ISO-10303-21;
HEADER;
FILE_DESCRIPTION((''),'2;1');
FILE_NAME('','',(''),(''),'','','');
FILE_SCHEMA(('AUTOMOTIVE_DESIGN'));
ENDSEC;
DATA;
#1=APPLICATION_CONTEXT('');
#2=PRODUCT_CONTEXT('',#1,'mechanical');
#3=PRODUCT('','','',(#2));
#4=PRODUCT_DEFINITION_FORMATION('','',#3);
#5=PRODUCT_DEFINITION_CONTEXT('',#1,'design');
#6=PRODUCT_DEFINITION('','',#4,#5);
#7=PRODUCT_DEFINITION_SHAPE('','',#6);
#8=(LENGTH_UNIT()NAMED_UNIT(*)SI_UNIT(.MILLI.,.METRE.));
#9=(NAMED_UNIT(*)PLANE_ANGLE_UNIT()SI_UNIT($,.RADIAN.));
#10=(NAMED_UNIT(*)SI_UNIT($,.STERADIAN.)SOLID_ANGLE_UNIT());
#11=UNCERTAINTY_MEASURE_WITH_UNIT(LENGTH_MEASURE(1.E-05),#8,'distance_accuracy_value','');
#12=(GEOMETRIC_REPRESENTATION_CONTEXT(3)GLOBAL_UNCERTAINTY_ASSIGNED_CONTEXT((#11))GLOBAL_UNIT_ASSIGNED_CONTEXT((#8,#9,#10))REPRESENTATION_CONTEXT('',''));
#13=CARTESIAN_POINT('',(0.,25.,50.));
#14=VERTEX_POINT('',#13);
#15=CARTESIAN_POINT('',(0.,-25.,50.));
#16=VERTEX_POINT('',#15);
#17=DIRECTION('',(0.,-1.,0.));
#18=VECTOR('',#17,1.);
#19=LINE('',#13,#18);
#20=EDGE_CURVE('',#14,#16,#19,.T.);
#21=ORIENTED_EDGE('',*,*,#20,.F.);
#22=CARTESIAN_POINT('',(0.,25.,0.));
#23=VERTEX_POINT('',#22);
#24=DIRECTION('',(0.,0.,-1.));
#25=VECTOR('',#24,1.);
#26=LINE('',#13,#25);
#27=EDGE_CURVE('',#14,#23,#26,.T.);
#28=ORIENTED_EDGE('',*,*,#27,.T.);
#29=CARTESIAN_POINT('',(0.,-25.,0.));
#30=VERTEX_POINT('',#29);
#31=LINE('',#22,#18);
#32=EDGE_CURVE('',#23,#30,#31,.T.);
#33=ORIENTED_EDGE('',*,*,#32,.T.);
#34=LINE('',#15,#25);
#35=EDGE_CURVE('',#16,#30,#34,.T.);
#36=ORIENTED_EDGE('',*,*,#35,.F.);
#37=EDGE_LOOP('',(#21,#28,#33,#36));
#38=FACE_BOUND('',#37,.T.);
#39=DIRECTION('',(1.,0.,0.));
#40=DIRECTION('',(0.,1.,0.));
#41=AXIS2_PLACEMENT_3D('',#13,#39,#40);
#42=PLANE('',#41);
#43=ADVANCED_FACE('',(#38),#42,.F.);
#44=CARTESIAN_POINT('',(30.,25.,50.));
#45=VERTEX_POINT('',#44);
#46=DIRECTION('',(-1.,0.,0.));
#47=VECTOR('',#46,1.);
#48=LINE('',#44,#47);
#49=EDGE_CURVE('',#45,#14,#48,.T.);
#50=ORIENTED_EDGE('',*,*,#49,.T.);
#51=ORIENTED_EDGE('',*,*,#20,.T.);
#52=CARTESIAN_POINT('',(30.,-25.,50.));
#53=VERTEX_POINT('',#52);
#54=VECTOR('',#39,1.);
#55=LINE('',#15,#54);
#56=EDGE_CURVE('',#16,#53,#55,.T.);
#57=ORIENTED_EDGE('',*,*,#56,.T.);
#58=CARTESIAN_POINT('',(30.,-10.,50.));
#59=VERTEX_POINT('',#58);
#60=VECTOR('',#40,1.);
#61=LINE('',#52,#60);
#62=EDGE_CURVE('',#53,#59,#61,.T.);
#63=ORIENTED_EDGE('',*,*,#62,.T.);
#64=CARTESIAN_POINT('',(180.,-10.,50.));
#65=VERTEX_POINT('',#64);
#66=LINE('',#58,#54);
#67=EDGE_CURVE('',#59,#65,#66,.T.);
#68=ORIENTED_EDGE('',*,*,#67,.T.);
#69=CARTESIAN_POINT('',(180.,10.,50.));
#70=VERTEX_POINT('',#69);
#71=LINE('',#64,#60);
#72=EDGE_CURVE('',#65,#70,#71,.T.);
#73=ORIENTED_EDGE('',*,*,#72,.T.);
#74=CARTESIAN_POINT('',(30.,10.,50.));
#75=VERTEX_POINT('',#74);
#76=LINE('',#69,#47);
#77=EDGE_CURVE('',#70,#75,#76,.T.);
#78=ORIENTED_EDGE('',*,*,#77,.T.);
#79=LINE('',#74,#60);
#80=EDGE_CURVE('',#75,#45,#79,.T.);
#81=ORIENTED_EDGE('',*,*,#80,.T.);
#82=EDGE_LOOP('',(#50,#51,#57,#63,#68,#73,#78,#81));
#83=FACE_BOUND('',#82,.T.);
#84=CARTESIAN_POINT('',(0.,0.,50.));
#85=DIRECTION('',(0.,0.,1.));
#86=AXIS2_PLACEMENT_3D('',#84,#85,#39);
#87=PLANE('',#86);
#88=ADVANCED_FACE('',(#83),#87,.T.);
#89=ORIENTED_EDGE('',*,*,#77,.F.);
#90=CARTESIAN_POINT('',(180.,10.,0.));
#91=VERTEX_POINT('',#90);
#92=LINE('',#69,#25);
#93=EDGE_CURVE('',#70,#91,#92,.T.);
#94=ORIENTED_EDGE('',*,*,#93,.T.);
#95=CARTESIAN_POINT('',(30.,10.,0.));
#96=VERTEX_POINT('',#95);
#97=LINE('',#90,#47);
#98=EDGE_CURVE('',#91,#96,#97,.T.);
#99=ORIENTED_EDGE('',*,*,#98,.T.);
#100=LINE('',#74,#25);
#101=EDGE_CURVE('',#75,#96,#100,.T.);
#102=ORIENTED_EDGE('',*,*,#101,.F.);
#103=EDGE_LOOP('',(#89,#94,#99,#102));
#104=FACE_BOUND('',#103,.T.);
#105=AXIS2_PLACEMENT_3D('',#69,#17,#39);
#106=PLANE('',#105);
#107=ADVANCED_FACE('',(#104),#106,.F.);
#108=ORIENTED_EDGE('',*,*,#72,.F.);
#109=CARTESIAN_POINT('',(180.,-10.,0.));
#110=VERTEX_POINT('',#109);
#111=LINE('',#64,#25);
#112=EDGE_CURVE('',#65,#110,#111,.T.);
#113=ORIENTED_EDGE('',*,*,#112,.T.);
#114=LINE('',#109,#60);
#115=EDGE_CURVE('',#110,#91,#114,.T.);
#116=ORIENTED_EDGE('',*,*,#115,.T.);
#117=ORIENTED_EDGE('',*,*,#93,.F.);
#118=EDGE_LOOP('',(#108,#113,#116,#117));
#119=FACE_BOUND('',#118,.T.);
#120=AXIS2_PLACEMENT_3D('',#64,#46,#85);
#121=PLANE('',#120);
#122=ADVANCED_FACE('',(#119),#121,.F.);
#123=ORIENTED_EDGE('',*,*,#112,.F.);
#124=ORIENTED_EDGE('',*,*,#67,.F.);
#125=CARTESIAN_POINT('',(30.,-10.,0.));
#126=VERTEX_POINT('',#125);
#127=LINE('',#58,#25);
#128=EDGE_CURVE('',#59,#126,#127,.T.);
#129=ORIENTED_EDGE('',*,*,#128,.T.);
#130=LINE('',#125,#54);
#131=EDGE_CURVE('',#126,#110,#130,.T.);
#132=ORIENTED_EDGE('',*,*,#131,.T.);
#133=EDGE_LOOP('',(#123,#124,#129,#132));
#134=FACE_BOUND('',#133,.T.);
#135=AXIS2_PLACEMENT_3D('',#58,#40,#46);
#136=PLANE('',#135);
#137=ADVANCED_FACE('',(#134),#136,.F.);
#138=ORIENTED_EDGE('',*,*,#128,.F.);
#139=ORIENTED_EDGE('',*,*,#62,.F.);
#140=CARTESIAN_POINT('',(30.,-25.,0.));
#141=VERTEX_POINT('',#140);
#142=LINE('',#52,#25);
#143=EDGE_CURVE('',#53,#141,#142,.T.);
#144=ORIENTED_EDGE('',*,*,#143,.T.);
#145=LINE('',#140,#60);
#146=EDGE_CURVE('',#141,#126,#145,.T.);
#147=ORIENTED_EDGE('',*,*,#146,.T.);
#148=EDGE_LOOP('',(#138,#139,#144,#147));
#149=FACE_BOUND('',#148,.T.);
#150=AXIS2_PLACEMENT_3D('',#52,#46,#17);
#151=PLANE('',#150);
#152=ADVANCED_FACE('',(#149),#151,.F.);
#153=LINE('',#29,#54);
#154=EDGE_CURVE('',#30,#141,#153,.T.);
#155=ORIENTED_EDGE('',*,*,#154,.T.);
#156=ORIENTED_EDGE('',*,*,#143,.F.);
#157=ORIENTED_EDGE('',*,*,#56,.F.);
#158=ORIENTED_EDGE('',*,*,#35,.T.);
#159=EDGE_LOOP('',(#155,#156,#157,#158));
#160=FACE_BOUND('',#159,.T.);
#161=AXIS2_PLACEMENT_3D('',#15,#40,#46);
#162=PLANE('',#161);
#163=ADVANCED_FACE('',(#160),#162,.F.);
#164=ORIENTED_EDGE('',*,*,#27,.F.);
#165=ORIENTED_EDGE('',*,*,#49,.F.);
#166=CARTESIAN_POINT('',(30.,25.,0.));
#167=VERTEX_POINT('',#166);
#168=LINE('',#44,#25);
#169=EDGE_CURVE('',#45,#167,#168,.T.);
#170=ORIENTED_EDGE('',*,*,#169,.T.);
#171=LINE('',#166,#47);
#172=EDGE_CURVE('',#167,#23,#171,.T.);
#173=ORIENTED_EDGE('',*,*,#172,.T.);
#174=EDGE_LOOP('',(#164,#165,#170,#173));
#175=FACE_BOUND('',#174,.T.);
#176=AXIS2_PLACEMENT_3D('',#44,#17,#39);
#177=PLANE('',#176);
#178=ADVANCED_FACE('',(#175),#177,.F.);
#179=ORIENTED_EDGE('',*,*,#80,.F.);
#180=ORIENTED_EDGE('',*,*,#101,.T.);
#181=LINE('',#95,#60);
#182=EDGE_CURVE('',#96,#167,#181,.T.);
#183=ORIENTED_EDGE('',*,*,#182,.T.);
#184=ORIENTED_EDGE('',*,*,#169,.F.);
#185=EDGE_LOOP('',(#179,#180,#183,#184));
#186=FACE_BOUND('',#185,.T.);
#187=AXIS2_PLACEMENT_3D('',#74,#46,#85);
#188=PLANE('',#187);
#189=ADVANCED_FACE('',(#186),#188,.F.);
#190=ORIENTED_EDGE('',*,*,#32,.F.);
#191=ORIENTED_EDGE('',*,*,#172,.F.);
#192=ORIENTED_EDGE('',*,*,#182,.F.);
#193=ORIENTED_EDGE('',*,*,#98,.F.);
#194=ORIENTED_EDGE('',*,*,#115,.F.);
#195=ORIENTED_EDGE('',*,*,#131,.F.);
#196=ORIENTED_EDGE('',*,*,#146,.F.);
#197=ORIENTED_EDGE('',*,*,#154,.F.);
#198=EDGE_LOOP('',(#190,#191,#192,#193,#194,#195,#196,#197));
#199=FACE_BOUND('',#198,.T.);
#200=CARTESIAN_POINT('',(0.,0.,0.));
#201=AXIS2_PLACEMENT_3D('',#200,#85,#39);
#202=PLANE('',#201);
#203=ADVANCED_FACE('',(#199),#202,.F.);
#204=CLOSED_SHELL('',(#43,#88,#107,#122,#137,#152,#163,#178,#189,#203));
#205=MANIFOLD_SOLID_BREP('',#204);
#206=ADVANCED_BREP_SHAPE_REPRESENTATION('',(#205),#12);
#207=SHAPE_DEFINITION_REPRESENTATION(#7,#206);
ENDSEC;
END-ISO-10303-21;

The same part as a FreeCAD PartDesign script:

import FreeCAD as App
import Part
import Sketcher
Q = App.Units.Quantity


def add_polygon(sketch, points):
    """Adds a closed chain of lines whose ends are joined by coincident constraints."""
    first, n = sketch.GeometryCount, len(points)
    for a, b in zip(points, points[1:] + points[:1]):
        sketch.addGeometry(Part.LineSegment(App.Vector(*a, 0), App.Vector(*b, 0)), False)
    for i in range(n):
        sketch.addConstraint(Sketcher.Constraint("Coincident", first + i, 2, first + (i + 1) % n, 1))

doc = App.newDocument("Part")
params = doc.addObject("Spreadsheet::Sheet", "Params")
for row, (alias, value) in enumerate([
    ("sketch1_width", "30 mm"),
    ("sketch1_width2", "150 mm"),
    ("sketch1_height", "50 mm"),
    ("sketch1_height2", "15 mm"),
    ("pad1_length", "50 mm"),
], start=1):
    params.set(f"A{row}", alias)
    params.set(f"B{row}", "=" + value)
    params.setAlias(f"B{row}", alias)

body = doc.addObject("PartDesign::Body", "Body")

# Sketch on XY plane
sketch1 = body.newObject("Sketcher::SketchObject", "Sketch")
sketch1.AttachmentSupport = (doc.getObject("XY_Plane"), [""])
sketch1.MapMode = "FlatFace"
add_polygon(sketch1, [(0, 25), (0, -25), (30, -25), (30, -10), (180, -10), (180, 10), (30, 10), (30, 25)])  # lines 0-7
sketch1.addConstraint([
    Sketcher.Constraint("Vertical", 0),
    Sketcher.Constraint("Horizontal", 1),
    Sketcher.Constraint("Vertical", 2),
    Sketcher.Constraint("Horizontal", 3),
    Sketcher.Constraint("Vertical", 4),
    Sketcher.Constraint("Horizontal", 5),
    Sketcher.Constraint("Vertical", 6),
    Sketcher.Constraint("Horizontal", 7),
    Sketcher.Constraint("Symmetric", 0, 2, 7, 2, -1, 1),
    Sketcher.Constraint("Symmetric", 2, 2, 5, 2, -1),
    Sketcher.Constraint("DistanceX", 1, 1, 1, 2, Q("30 mm")),
    Sketcher.Constraint("DistanceX", 3, 1, 3, 2, Q("150 mm")),
    Sketcher.Constraint("DistanceY", 0, 2, 0, 1, Q("50 mm")),
    Sketcher.Constraint("DistanceY", 2, 1, 2, 2, Q("15 mm")),
])
sketch1.setExpression("Constraints[18]", "Params.sketch1_width")
sketch1.setExpression("Constraints[19]", "Params.sketch1_width2")
sketch1.setExpression("Constraints[20]", "Params.sketch1_height")
sketch1.setExpression("Constraints[21]", "Params.sketch1_height2")
pad1 = body.newObject("PartDesign::Pad", "Pad")
pad1.Profile = sketch1
pad1.setExpression("Length", "Params.pad1_length")

doc.recompute()
